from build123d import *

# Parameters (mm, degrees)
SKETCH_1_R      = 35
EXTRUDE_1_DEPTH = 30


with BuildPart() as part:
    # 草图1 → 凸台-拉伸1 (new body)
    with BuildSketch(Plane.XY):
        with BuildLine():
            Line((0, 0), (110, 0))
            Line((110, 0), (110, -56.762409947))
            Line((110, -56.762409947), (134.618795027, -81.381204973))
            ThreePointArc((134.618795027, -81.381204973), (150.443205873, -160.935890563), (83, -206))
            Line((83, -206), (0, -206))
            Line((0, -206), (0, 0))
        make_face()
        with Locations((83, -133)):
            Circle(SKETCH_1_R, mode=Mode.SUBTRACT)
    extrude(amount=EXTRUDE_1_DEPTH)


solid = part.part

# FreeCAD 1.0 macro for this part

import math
import FreeCAD as App
import Part
import Sketcher
Q = App.Units.Quantity

doc = App.newDocument("Part")
body = doc.addObject("PartDesign::Body", "Body")

# Sketch on XY plane
sketch1 = body.newObject("Sketcher::SketchObject", "Sketch")
sketch1.AttachmentSupport = (doc.getObject("XY_Plane"), [""])
sketch1.MapMode = "FlatFace"
sketch1.addGeometry([
    Part.LineSegment(App.Vector(110, 0, 0), App.Vector(0, 0, 0)),  # 0
    Part.LineSegment(App.Vector(0, 0, 0), App.Vector(0, -206, 0)),  # 1
    Part.LineSegment(App.Vector(0, -206, 0), App.Vector(83, -206, 0)),  # 2
    Part.ArcOfCircle(Part.Circle(App.Vector(83, -133, 0), App.Vector(0, 0, 1), 73), math.radians(-90), math.radians(45)),  # 3
    Part.LineSegment(App.Vector(134.618795, -81.381205, 0), App.Vector(110, -56.76241, 0)),  # 4
    Part.LineSegment(App.Vector(110, -56.76241, 0), App.Vector(110, 0, 0)),  # 5
    Part.Circle(App.Vector(83, -133, 0), App.Vector(0, 0, 1), 35),  # 6
], False)
sketch1.addConstraint([
    Sketcher.Constraint("Coincident", 0, 2, 1, 1),
    Sketcher.Constraint("Coincident", 1, 2, 2, 1),
    Sketcher.Constraint("Tangent", 2, 2, 3, 1),
    Sketcher.Constraint("Tangent", 3, 2, 4, 1),
    Sketcher.Constraint("Coincident", 4, 2, 5, 1),
    Sketcher.Constraint("Coincident", 5, 2, 0, 1),
    Sketcher.Constraint("Horizontal", 0),
    Sketcher.Constraint("Vertical", 1),
    Sketcher.Constraint("Horizontal", 2),
    Sketcher.Constraint("Vertical", 5),
    Sketcher.Constraint("Coincident", 0, 2, -1, 1),
    Sketcher.Constraint("Coincident", 6, 3, 3, 3),
    Sketcher.Constraint("Diameter", 6, Q("70 mm")),
    Sketcher.Constraint("Radius", 3, Q("73 mm")),
    Sketcher.Constraint("DistanceX", 0, 2, 0, 1, Q("110 mm")),
    Sketcher.Constraint("DistanceX", 2, 1, 2, 2, Q("83 mm")),
    Sketcher.Constraint("DistanceY", 1, 2, 1, 1, Q("206 mm")),
    Sketcher.Constraint("Angle", 4, Q("135 deg")),
])
pad1 = body.newObject("PartDesign::Pad", "Pad")
pad1.Profile = sketch1
pad1.Length = 30

doc.recompute()
